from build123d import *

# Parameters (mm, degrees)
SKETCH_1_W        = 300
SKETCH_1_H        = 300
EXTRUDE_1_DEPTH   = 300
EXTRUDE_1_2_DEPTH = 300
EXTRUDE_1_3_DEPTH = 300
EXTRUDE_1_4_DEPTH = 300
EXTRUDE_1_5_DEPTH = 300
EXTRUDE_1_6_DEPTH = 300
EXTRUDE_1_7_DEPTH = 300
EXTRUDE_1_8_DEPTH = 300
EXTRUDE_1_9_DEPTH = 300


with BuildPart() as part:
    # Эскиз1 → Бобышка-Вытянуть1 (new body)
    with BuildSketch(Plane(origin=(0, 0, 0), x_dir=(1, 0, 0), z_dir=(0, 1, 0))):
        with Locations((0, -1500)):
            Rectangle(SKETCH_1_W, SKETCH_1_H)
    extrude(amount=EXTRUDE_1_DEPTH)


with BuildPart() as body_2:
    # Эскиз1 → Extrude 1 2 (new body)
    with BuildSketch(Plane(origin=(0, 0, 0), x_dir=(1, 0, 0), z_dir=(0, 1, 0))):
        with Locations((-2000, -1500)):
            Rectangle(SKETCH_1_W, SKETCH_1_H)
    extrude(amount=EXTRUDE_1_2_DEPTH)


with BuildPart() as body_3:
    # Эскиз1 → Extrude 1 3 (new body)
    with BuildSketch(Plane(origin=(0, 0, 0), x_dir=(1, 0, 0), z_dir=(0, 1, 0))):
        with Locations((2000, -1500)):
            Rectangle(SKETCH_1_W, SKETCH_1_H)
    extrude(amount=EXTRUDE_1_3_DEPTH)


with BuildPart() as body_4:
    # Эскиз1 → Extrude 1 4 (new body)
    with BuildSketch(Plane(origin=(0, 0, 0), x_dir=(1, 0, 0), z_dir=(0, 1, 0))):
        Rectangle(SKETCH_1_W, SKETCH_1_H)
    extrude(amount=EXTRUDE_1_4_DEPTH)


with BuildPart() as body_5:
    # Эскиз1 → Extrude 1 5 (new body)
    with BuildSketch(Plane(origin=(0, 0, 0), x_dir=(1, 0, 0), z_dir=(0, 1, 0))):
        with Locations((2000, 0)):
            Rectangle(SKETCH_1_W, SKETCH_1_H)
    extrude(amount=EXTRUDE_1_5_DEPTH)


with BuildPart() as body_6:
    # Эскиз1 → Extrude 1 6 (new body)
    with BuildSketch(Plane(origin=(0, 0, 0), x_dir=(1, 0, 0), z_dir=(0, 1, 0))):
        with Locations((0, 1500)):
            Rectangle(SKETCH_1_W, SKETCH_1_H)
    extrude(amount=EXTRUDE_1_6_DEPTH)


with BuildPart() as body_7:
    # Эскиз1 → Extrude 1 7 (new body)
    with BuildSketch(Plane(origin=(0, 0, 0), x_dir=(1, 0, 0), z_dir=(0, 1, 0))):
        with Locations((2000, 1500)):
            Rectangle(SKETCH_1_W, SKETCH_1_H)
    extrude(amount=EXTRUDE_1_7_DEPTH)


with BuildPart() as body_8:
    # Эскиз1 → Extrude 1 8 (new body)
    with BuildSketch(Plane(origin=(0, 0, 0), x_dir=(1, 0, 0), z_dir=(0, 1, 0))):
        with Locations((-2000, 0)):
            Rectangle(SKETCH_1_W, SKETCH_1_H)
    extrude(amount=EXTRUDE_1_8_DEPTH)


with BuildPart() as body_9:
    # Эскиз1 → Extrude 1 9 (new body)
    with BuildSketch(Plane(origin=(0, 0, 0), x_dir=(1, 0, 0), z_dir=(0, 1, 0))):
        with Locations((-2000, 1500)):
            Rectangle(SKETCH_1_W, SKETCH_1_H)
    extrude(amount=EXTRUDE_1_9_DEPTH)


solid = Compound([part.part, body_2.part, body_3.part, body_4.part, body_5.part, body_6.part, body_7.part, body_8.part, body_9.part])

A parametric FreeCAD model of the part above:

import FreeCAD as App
import Part
import Sketcher

V = App.Vector
Q = App.Units.Quantity


def add_polygon(sketch, points):
    """Adds a closed chain of lines whose ends are joined by coincident constraints."""
    first, n = sketch.GeometryCount, len(points)
    for a, b in zip(points, points[1:] + points[:1]):
        sketch.addGeometry(Part.LineSegment(App.Vector(*a, 0), App.Vector(*b, 0)), False)
    for i in range(n):
        sketch.addConstraint(Sketcher.Constraint("Coincident", first + i, 2, first + (i + 1) % n, 1))

doc = App.newDocument("Part")
params = doc.addObject("Spreadsheet::Sheet", "Params")
for row, (alias, value) in enumerate([
    ("sketch1_width", "300 mm"),
    ("pad1_length", "300 mm"),
    ("sketch2_width", "300 mm"),
    ("pad2_length", "300 mm"),
    ("sketch3_width", "300 mm"),
    ("pad3_length", "300 mm"),
    ("sketch4_width", "300 mm"),
    ("pad4_length", "300 mm"),
    ("sketch5_width", "300 mm"),
    ("pad5_length", "300 mm"),
    ("sketch6_width", "300 mm"),
    ("pad6_length", "300 mm"),
    ("sketch7_width", "300 mm"),
    ("pad7_length", "300 mm"),
    ("sketch8_width", "300 mm"),
    ("pad8_length", "300 mm"),
    ("sketch9_width", "300 mm"),
    ("pad9_length", "300 mm"),
], start=1):
    params.set(f"A{row}", alias)
    params.set(f"B{row}", "=" + value)
    params.setAlias(f"B{row}", alias)

body = doc.addObject("PartDesign::Body", "Body")

# Sketch on XZ plane
sketch1 = body.newObject("Sketcher::SketchObject", "Sketch")
sketch1.AttachmentSupport = (doc.getObject("XZ_Plane"), [""])
sketch1.MapMode = "FlatFace"
add_polygon(sketch1, [(-150, 1350), (-150, 1650), (150, 1650), (150, 1350)])  # lines 0-3
sketch1.addConstraint(Sketcher.Constraint("Vertical", 0))
sketch1.addConstraint(Sketcher.Constraint("Horizontal", 1))
sketch1.addConstraint(Sketcher.Constraint("Vertical", 2))
sketch1.addConstraint(Sketcher.Constraint("Horizontal", 3))
sketch1.addConstraint(Sketcher.Constraint("Equal", 3, 0))
sketch1.addConstraint(Sketcher.Constraint("DistanceX", 1, 1, 1, 2, Q("300 mm")))
sketch1.addConstraint(Sketcher.Constraint("DistanceX", 0, 2, -1, 1, Q("150 mm")))
sketch1.addConstraint(Sketcher.Constraint("DistanceY", -1, 1, 0, 2, Q("1650 mm")))
sketch1.setExpression("Constraints[9]", "Params.sketch1_width")
pad1 = body.newObject("PartDesign::Pad", "Pad")
pad1.Profile = sketch1
pad1.setExpression("Length", "Params.pad1_length")
pad1.Reversed = True
body2 = doc.addObject("PartDesign::Body", "Body001")

# Sketch on XZ plane
sketch2 = body2.newObject("Sketcher::SketchObject", "Sketch001")
sketch2.AttachmentSupport = (doc.getObject("XZ_Plane001"), [""])
sketch2.MapMode = "FlatFace"
add_polygon(sketch2, [(-2150, 1350), (-2150, 1650), (-1850, 1650), (-1850, 1350)])  # lines 0-3
sketch2.addConstraint(Sketcher.Constraint("Vertical", 0))
sketch2.addConstraint(Sketcher.Constraint("Horizontal", 1))
sketch2.addConstraint(Sketcher.Constraint("Vertical", 2))
sketch2.addConstraint(Sketcher.Constraint("Horizontal", 3))
sketch2.addConstraint(Sketcher.Constraint("Equal", 3, 0))
sketch2.addConstraint(Sketcher.Constraint("DistanceX", 1, 1, 1, 2, Q("300 mm")))
sketch2.addConstraint(Sketcher.Constraint("DistanceX", 0, 2, -1, 1, Q("2150 mm")))
sketch2.addConstraint(Sketcher.Constraint("DistanceY", -1, 1, 0, 2, Q("1650 mm")))
sketch2.setExpression("Constraints[9]", "Params.sketch2_width")
pad2 = body2.newObject("PartDesign::Pad", "Pad001")
pad2.Profile = sketch2
pad2.setExpression("Length", "Params.pad2_length")
pad2.Reversed = True
body3 = doc.addObject("PartDesign::Body", "Body002")

# Sketch on XZ plane
sketch3 = body3.newObject("Sketcher::SketchObject", "Sketch002")
sketch3.AttachmentSupport = (doc.getObject("XZ_Plane002"), [""])
sketch3.MapMode = "FlatFace"
add_polygon(sketch3, [(1850, 1350), (1850, 1650), (2150, 1650), (2150, 1350)])  # lines 0-3
sketch3.addConstraint(Sketcher.Constraint("Vertical", 0))
sketch3.addConstraint(Sketcher.Constraint("Horizontal", 1))
sketch3.addConstraint(Sketcher.Constraint("Vertical", 2))
sketch3.addConstraint(Sketcher.Constraint("Horizontal", 3))
sketch3.addConstraint(Sketcher.Constraint("Equal", 3, 0))
sketch3.addConstraint(Sketcher.Constraint("DistanceX", 1, 1, 1, 2, Q("300 mm")))
sketch3.addConstraint(Sketcher.Constraint("DistanceX", -1, 1, 0, 2, Q("1850 mm")))
sketch3.addConstraint(Sketcher.Constraint("DistanceY", -1, 1, 0, 2, Q("1650 mm")))
sketch3.setExpression("Constraints[9]", "Params.sketch3_width")
pad3 = body3.newObject("PartDesign::Pad", "Pad002")
pad3.Profile = sketch3
pad3.setExpression("Length", "Params.pad3_length")
pad3.Reversed = True
body4 = doc.addObject("PartDesign::Body", "Body003")

# Sketch on XZ plane
sketch4 = body4.newObject("Sketcher::SketchObject", "Sketch003")
sketch4.AttachmentSupport = (doc.getObject("XZ_Plane003"), [""])
sketch4.MapMode = "FlatFace"
add_polygon(sketch4, [(-150, -150), (-150, 150), (150, 150), (150, -150)])  # lines 0-3
sketch4.addConstraint(Sketcher.Constraint("Vertical", 0))
sketch4.addConstraint(Sketcher.Constraint("Horizontal", 1))
sketch4.addConstraint(Sketcher.Constraint("Vertical", 2))
sketch4.addConstraint(Sketcher.Constraint("Horizontal", 3))
sketch4.addConstraint(Sketcher.Constraint("Symmetric", 0, 2, 2, 2, -1, 1))
sketch4.addConstraint(Sketcher.Constraint("Equal", 3, 0))
sketch4.addConstraint(Sketcher.Constraint("DistanceX", 1, 1, 1, 2, Q("300 mm")))
sketch4.setExpression("Constraints[10]", "Params.sketch4_width")
pad4 = body4.newObject("PartDesign::Pad", "Pad003")
pad4.Profile = sketch4
pad4.setExpression("Length", "Params.pad4_length")
pad4.Reversed = True
body5 = doc.addObject("PartDesign::Body", "Body004")

# Sketch on XZ plane
sketch5 = body5.newObject("Sketcher::SketchObject", "Sketch004")
sketch5.AttachmentSupport = (doc.getObject("XZ_Plane004"), [""])
sketch5.MapMode = "FlatFace"
add_polygon(sketch5, [(1850, -150), (1850, 150), (2150, 150), (2150, -150)])  # lines 0-3
sketch5.addConstraint(Sketcher.Constraint("Vertical", 0))
sketch5.addConstraint(Sketcher.Constraint("Horizontal", 1))
sketch5.addConstraint(Sketcher.Constraint("Vertical", 2))
sketch5.addConstraint(Sketcher.Constraint("Horizontal", 3))
sketch5.addConstraint(Sketcher.Constraint("Equal", 3, 0))
sketch5.addConstraint(Sketcher.Constraint("DistanceX", 1, 1, 1, 2, Q("300 mm")))
sketch5.addConstraint(Sketcher.Constraint("DistanceX", -1, 1, 0, 2, Q("1850 mm")))
sketch5.addConstraint(Sketcher.Constraint("DistanceY", -1, 1, 0, 2, Q("150 mm")))
sketch5.setExpression("Constraints[9]", "Params.sketch5_width")
pad5 = body5.newObject("PartDesign::Pad", "Pad004")
pad5.Profile = sketch5
pad5.setExpression("Length", "Params.pad5_length")
pad5.Reversed = True
body6 = doc.addObject("PartDesign::Body", "Body005")

# Sketch on XZ plane
sketch6 = body6.newObject("Sketcher::SketchObject", "Sketch005")
sketch6.AttachmentSupport = (doc.getObject("XZ_Plane005"), [""])
sketch6.MapMode = "FlatFace"
add_polygon(sketch6, [(-150, -1650), (-150, -1350), (150, -1350), (150, -1650)])  # lines 0-3
sketch6.addConstraint(Sketcher.Constraint("Vertical", 0))
sketch6.addConstraint(Sketcher.Constraint("Horizontal", 1))
sketch6.addConstraint(Sketcher.Constraint("Vertical", 2))
sketch6.addConstraint(Sketcher.Constraint("Horizontal", 3))
sketch6.addConstraint(Sketcher.Constraint("Equal", 3, 0))
sketch6.addConstraint(Sketcher.Constraint("DistanceX", 1, 1, 1, 2, Q("300 mm")))
sketch6.addConstraint(Sketcher.Constraint("DistanceX", 0, 2, -1, 1, Q("150 mm")))
sketch6.addConstraint(Sketcher.Constraint("DistanceY", 0, 2, -1, 1, Q("1350 mm")))
sketch6.setExpression("Constraints[9]", "Params.sketch6_width")
pad6 = body6.newObject("PartDesign::Pad", "Pad005")
pad6.Profile = sketch6
pad6.setExpression("Length", "Params.pad6_length")
pad6.Reversed = True
body7 = doc.addObject("PartDesign::Body", "Body006")

# Sketch on XZ plane
sketch7 = body7.newObject("Sketcher::SketchObject", "Sketch006")
sketch7.AttachmentSupport = (doc.getObject("XZ_Plane006"), [""])
sketch7.MapMode = "FlatFace"
add_polygon(sketch7, [(1850, -1650), (1850, -1350), (2150, -1350), (2150, -1650)])  # lines 0-3
sketch7.addConstraint(Sketcher.Constraint("Vertical", 0))
sketch7.addConstraint(Sketcher.Constraint("Horizontal", 1))
sketch7.addConstraint(Sketcher.Constraint("Vertical", 2))
sketch7.addConstraint(Sketcher.Constraint("Horizontal", 3))
sketch7.addConstraint(Sketcher.Constraint("Equal", 3, 0))
sketch7.addConstraint(Sketcher.Constraint("DistanceX", 1, 1, 1, 2, Q("300 mm")))
sketch7.addConstraint(Sketcher.Constraint("DistanceX", -1, 1, 0, 2, Q("1850 mm")))
sketch7.addConstraint(Sketcher.Constraint("DistanceY", 0, 2, -1, 1, Q("1350 mm")))
sketch7.setExpression("Constraints[9]", "Params.sketch7_width")
pad7 = body7.newObject("PartDesign::Pad", "Pad006")
pad7.Profile = sketch7
pad7.setExpression("Length", "Params.pad7_length")
pad7.Reversed = True
body8 = doc.addObject("PartDesign::Body", "Body007")

# Sketch on XZ plane
sketch8 = body8.newObject("Sketcher::SketchObject", "Sketch007")
sketch8.AttachmentSupport = (doc.getObject("XZ_Plane007"), [""])
sketch8.MapMode = "FlatFace"
add_polygon(sketch8, [(-2150, -150), (-2150, 150), (-1850, 150), (-1850, -150)])  # lines 0-3
sketch8.addConstraint(Sketcher.Constraint("Vertical", 0))
sketch8.addConstraint(Sketcher.Constraint("Horizontal", 1))
sketch8.addConstraint(Sketcher.Constraint("Vertical", 2))
sketch8.addConstraint(Sketcher.Constraint("Horizontal", 3))
sketch8.addConstraint(Sketcher.Constraint("Equal", 3, 0))
sketch8.addConstraint(Sketcher.Constraint("DistanceX", 1, 1, 1, 2, Q("300 mm")))
sketch8.addConstraint(Sketcher.Constraint("DistanceX", 0, 2, -1, 1, Q("2150 mm")))
sketch8.addConstraint(Sketcher.Constraint("DistanceY", -1, 1, 0, 2, Q("150 mm")))
sketch8.setExpression("Constraints[9]", "Params.sketch8_width")
pad8 = body8.newObject("PartDesign::Pad", "Pad007")
pad8.Profile = sketch8
pad8.setExpression("Length", "Params.pad8_length")
pad8.Reversed = True
body9 = doc.addObject("PartDesign::Body", "Body008")

# Sketch on XZ plane
sketch9 = body9.newObject("Sketcher::SketchObject", "Sketch008")
sketch9.AttachmentSupport = (doc.getObject("XZ_Plane008"), [""])
sketch9.MapMode = "FlatFace"
add_polygon(sketch9, [(-2150, -1650), (-2150, -1350), (-1850, -1350), (-1850, -1650)])  # lines 0-3
sketch9.addConstraint(Sketcher.Constraint("Vertical", 0))
sketch9.addConstraint(Sketcher.Constraint("Horizontal", 1))
sketch9.addConstraint(Sketcher.Constraint("Vertical", 2))
sketch9.addConstraint(Sketcher.Constraint("Horizontal", 3))
sketch9.addConstraint(Sketcher.Constraint("Equal", 3, 0))
sketch9.addConstraint(Sketcher.Constraint("DistanceX", 1, 1, 1, 2, Q("300 mm")))
sketch9.addConstraint(Sketcher.Constraint("DistanceX", 0, 2, -1, 1, Q("2150 mm")))
sketch9.addConstraint(Sketcher.Constraint("DistanceY", 0, 2, -1, 1, Q("1350 mm")))
sketch9.setExpression("Constraints[9]", "Params.sketch9_width")
pad9 = body9.newObject("PartDesign::Pad", "Pad008")
pad9.Profile = sketch9
pad9.setExpression("Length", "Params.pad9_length")
pad9.Reversed = True

doc.recompute()
